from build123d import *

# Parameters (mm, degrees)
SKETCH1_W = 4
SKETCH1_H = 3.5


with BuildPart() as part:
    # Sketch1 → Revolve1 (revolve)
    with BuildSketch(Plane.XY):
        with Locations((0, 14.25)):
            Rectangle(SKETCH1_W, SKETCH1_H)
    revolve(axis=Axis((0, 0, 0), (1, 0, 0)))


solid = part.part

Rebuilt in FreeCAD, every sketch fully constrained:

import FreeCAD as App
import Part
import Sketcher


def add_polygon(sketch, points):
    """Adds a closed chain of lines whose ends are joined by coincident constraints."""
    first, n = sketch.GeometryCount, len(points)
    for a, b in zip(points, points[1:] + points[:1]):
        sketch.addGeometry(Part.LineSegment(App.Vector(*a, 0), App.Vector(*b, 0)), False)
    for i in range(n):
        sketch.addConstraint(Sketcher.Constraint("Coincident", first + i, 2, first + (i + 1) % n, 1))

doc = App.newDocument("Part")
params = doc.addObject("Spreadsheet::Sheet", "Params")
for row, (alias, value) in enumerate([
    ("sketch1_width", "4 mm"),
    ("sketch1_height", "3.5 mm"),
    ("revolution_angle", "360 deg"),
], start=1):
    params.set(f"A{row}", alias)
    params.set(f"B{row}", "=" + value)
    params.setAlias(f"B{row}", alias)

body = doc.addObject("PartDesign::Body", "Body")

# Sketch on XY plane
sketch1 = body.newObject("Sketcher::SketchObject", "Sketch")
sketch1.AttachmentSupport = (doc.getObject("XY_Plane"), [""])
sketch1.MapMode = "FlatFace"
add_polygon(sketch1, [(-2, 16), (-2, 12.5), (2, 12.5), (2, 16)])  # lines 0-3
sketch1.addConstraint([
    Sketcher.Constraint("Vertical", 0),
    Sketcher.Constraint("Horizontal", 1),
    Sketcher.Constraint("Vertical", 2),
    Sketcher.Constraint("Horizontal", 3),
    Sketcher.Constraint("DistanceX", 1, 1, 1, 2, 4.0),
    Sketcher.Constraint("DistanceY", 0, 2, 0, 1, 3.5),
    Sketcher.Constraint("DistanceX", 0, 2, -1, 1, 2.0),
    Sketcher.Constraint("DistanceY", -1, 1, 2, 2, 16.0),
])
sketch1.setExpression("Constraints[8]", "Params.sketch1_width")
sketch1.setExpression("Constraints[9]", "Params.sketch1_height")
revolution = body.newObject("PartDesign::Revolution", "Revolution")
revolution.Profile = sketch1
revolution.ReferenceAxis = (sketch1, ["H_Axis"])
revolution.setExpression("Angle", "Params.revolution_angle")

doc.recompute()
